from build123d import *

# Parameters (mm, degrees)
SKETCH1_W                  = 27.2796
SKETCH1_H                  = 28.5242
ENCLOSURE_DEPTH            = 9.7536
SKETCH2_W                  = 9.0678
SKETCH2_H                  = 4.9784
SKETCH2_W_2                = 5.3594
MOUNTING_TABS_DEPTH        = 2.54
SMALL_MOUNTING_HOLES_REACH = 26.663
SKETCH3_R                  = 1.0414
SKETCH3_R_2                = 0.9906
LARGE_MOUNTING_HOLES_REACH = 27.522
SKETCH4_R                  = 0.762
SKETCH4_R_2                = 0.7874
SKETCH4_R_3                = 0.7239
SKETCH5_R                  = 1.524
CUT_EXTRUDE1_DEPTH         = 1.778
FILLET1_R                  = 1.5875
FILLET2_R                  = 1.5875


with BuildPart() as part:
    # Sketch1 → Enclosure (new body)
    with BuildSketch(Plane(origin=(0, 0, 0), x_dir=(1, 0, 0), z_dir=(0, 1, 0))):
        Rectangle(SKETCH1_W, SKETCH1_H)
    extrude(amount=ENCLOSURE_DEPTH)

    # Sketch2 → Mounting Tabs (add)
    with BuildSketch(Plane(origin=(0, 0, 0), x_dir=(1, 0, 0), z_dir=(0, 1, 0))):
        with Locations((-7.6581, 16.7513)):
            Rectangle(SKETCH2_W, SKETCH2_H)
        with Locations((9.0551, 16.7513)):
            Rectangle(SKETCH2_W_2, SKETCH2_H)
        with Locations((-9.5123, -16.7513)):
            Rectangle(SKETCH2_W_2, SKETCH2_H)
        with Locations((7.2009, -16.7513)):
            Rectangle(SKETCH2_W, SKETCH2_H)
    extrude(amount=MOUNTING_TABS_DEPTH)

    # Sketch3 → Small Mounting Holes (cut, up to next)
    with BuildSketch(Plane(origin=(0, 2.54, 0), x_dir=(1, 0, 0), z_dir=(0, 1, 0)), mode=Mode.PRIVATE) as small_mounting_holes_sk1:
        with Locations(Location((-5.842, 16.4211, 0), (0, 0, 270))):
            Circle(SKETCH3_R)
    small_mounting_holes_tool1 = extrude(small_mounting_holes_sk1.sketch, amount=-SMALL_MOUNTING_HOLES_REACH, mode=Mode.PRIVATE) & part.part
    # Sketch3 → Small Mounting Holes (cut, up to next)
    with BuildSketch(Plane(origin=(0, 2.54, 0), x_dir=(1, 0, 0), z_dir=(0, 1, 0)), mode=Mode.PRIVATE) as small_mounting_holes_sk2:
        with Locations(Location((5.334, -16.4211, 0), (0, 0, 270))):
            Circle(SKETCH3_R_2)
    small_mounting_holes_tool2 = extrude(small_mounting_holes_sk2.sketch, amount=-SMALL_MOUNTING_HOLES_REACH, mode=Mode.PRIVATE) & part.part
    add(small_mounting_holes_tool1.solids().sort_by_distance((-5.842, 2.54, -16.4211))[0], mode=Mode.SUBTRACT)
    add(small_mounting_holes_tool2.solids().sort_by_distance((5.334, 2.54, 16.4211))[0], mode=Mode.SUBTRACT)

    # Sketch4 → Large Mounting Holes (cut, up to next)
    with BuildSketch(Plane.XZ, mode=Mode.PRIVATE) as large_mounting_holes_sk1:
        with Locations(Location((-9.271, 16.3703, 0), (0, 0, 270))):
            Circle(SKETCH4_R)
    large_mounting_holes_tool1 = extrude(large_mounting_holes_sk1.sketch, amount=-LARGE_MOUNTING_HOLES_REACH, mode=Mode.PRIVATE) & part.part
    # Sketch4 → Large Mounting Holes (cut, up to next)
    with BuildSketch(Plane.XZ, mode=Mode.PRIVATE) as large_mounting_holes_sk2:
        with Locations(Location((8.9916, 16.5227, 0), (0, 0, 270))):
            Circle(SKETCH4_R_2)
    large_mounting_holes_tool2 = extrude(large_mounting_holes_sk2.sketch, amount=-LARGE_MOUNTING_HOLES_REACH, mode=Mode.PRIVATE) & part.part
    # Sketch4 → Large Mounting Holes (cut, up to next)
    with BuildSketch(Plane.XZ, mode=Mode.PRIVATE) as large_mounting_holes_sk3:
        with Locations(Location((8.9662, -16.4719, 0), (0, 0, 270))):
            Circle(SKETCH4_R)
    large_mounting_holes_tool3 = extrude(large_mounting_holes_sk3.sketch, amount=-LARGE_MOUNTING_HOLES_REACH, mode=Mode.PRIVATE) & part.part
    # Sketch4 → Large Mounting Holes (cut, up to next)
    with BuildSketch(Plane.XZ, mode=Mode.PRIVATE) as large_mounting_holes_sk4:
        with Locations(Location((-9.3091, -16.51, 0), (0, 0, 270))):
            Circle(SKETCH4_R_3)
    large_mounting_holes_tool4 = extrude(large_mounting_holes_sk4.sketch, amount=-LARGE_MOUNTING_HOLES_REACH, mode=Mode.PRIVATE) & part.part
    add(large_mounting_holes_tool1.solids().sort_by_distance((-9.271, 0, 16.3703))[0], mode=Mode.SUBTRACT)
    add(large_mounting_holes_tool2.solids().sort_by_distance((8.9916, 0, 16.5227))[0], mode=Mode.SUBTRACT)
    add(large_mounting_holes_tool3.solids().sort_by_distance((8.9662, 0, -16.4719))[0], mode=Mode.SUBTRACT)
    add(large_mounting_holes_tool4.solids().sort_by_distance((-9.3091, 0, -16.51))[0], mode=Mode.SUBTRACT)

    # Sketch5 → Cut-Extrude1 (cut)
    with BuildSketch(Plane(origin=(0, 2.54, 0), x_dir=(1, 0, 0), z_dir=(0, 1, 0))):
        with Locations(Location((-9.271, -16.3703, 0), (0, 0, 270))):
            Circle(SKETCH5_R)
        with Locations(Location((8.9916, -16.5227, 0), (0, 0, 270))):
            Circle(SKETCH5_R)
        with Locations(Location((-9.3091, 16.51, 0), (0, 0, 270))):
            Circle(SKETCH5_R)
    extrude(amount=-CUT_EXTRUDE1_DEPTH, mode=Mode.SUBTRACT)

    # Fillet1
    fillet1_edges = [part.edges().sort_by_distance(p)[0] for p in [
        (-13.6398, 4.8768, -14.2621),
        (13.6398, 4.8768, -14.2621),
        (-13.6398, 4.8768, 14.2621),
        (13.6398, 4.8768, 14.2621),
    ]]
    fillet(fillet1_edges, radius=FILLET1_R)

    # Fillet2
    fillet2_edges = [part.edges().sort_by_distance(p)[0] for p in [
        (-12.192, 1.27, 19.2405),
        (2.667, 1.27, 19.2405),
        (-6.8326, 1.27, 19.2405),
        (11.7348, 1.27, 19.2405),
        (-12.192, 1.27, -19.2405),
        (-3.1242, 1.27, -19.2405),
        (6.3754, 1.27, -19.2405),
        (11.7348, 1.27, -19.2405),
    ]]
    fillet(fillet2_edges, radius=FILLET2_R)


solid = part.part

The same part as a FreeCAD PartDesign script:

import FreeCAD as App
import Part
import Sketcher
from FreeCAD import Vector
Q = App.Units.Quantity


def edges_at(feature, points):
    """Names of the edges that pass closest to the given points."""
    edges = feature.Shape.Edges
    near = lambda p: min(range(len(edges)), key=lambda i: edges[i].distToShape(Part.Vertex(*p))[0])
    return sorted({f"Edge{near(p) + 1}" for p in points})


def add_polygon(sketch, points):
    """Adds a closed chain of lines whose ends are joined by coincident constraints."""
    first, n = sketch.GeometryCount, len(points)
    for a, b in zip(points, points[1:] + points[:1]):
        sketch.addGeometry(Part.LineSegment(App.Vector(*a, 0), App.Vector(*b, 0)), False)
    for i in range(n):
        sketch.addConstraint(Sketcher.Constraint("Coincident", first + i, 2, first + (i + 1) % n, 1))

doc = App.newDocument("Part")
body = doc.addObject("PartDesign::Body", "Body")

# Sketch on XZ plane
sketch1 = body.newObject("Sketcher::SketchObject", "Sketch")
sketch1.AttachmentSupport = (doc.getObject("XZ_Plane"), [""])
sketch1.MapMode = "FlatFace"
add_polygon(sketch1, [(-14, -14), (-14, 14), (14, 14), (14, -14)])  # lines 0-3
sketch1.addConstraint(Sketcher.Constraint("Vertical", 0))
sketch1.addConstraint(Sketcher.Constraint("Horizontal", 1))
sketch1.addConstraint(Sketcher.Constraint("Vertical", 2))
sketch1.addConstraint(Sketcher.Constraint("Horizontal", 3))
sketch1.addConstraint(Sketcher.Constraint("Symmetric", 0, 2, 2, 2, -1, 1))
sketch1.addConstraint(Sketcher.Constraint("DistanceX", 1, 1, 1, 2, Q("1.074 in")))
sketch1.addConstraint(Sketcher.Constraint("DistanceY", 0, 1, 0, 2, Q("1.123 in")))
pad1 = body.newObject("PartDesign::Pad", "Pad")
pad1.Profile = sketch1
pad1.Length = Q("0.384 in")
pad1.Reversed = True

# Sketch on XZ plane
sketch2 = body.newObject("Sketcher::SketchObject", "Sketch001")
sketch2.AttachmentSupport = (doc.getObject("XZ_Plane"), [""])
sketch2.MapMode = "FlatFace"
add_polygon(sketch2, [(-12.2, -19.2), (-12.2, -14.3), (-3.1, -14.3), (-3.1, -19.2)])  # lines 0-3
add_polygon(sketch2, [(6.4, -19.2), (6.4, -14.3), (11.7, -14.3), (11.7, -19.2)])  # lines 4-7
add_polygon(sketch2, [(-12.2, 14.3), (-12.2, 19.2), (-6.8, 19.2), (-6.8, 14.3)])  # lines 8-11
add_polygon(sketch2, [(2.7, 14.3), (2.7, 19.2), (11.7, 19.2), (11.7, 14.3)])  # lines 12-15
sketch2.addConstraint(Sketcher.Constraint("Vertical", 0))
sketch2.addConstraint(Sketcher.Constraint("Horizontal", 1))
sketch2.addConstraint(Sketcher.Constraint("Vertical", 2))
sketch2.addConstraint(Sketcher.Constraint("Horizontal", 3))
sketch2.addConstraint(Sketcher.Constraint("Vertical", 4))
sketch2.addConstraint(Sketcher.Constraint("Horizontal", 5))
sketch2.addConstraint(Sketcher.Constraint("Vertical", 6))
sketch2.addConstraint(Sketcher.Constraint("Horizontal", 7))
sketch2.addConstraint(Sketcher.Constraint("Vertical", 8))
sketch2.addConstraint(Sketcher.Constraint("Horizontal", 9))
sketch2.addConstraint(Sketcher.Constraint("Vertical", 10))
sketch2.addConstraint(Sketcher.Constraint("Horizontal", 11))
sketch2.addConstraint(Sketcher.Constraint("Vertical", 12))
sketch2.addConstraint(Sketcher.Constraint("Horizontal", 13))
sketch2.addConstraint(Sketcher.Constraint("Vertical", 14))
sketch2.addConstraint(Sketcher.Constraint("Horizontal", 15))
sketch2.addConstraint(Sketcher.Constraint("Symmetric", 3, 2, 8, 2, -1))
sketch2.addConstraint(Sketcher.Constraint("Symmetric", 6, 2, 13, 2, -1))
sketch2.addConstraint(Sketcher.Constraint("Horizontal", 1, 2, 4, 2))
sketch2.addConstraint(Sketcher.Constraint("Horizontal", 3, 2, 6, 2))
sketch2.addConstraint(Sketcher.Constraint("Horizontal", 11, 2, 14, 2))
sketch2.addConstraint(Sketcher.Constraint("Equal", 7, 9))
sketch2.addConstraint(Sketcher.Constraint("Equal", 3, 13))
sketch2.addConstraint(Sketcher.Constraint("Equal", 6, 8))
sketch2.addConstraint(Sketcher.Constraint("DistanceX", 1, 1, 1, 2, Q("0.357 in")))
sketch2.addConstraint(Sketcher.Constraint("DistanceX", 5, 1, 5, 2, Q("0.211 in")))
sketch2.addConstraint(Sketcher.Constraint("DistanceY", 0, 1, 0, 2, Q("0.196 in")))
sketch2.addConstraint(Sketcher.Constraint("DistanceX", 0, 2, -1, 1, Q("0.48 in")))
sketch2.addConstraint(Sketcher.Constraint("DistanceX", 9, 2, 4, 2, Q("0.52 in")))
sketch2.addConstraint(Sketcher.Constraint("DistanceY", 0, 2, 8, 2, Q("1.319 in")))
pad2 = body.newObject("PartDesign::Pad", "Pad001")
pad2.Profile = sketch2
pad2.Length = Q("0.1 in")
pad2.Reversed = True

# Sketch on XZ plane
sketch3 = body.newObject("Sketcher::SketchObject", "Sketch002")
sketch3.AttachmentSupport = (doc.getObject("XZ_Plane"), [""])
sketch3.MapMode = "FlatFace"
sketch3.AttachmentOffset = App.Placement(Vector(0, 0, -0.1 * 25.4), App.Rotation())
sketch3.addGeometry(Part.Circle(Vector(-5.8, -16.4, 0), Vector(0, 0, 1), 1), False)
sketch3.addConstraint(Sketcher.Constraint("Diameter", 0, Q("0.082 in")))
sketch3.addConstraint(Sketcher.Constraint("DistanceX", 0, 3, -1, 1, Q("0.23 in")))
sketch3.addConstraint(Sketcher.Constraint("DistanceY", 0, 3, -1, 1, Q("0.6465 in")))
pocket1 = body.newObject("PartDesign::Pocket", "Pocket")
pocket1.Profile = sketch3
pocket1.Type = "UpToFirst"
pocket1.Reversed = True

# Sketch on XZ plane
sketch4 = body.newObject("Sketcher::SketchObject", "Sketch003")
sketch4.AttachmentSupport = (doc.getObject("XZ_Plane"), [""])
sketch4.MapMode = "FlatFace"
sketch4.AttachmentOffset = App.Placement(Vector(0, 0, -0.1 * 25.4), App.Rotation())
sketch4.addGeometry(Part.Circle(Vector(5.3, 16.4, 0), Vector(0, 0, 1), 1), False)
sketch4.addConstraint(Sketcher.Constraint("Diameter", 0, Q("0.078 in")))
sketch4.addConstraint(Sketcher.Constraint("DistanceX", -1, 1, 0, 3, Q("0.21 in")))
sketch4.addConstraint(Sketcher.Constraint("DistanceY", -1, 1, 0, 3, Q("0.6465 in")))
pocket2 = body.newObject("PartDesign::Pocket", "Pocket001")
pocket2.Profile = sketch4
pocket2.Type = "UpToFirst"
pocket2.Reversed = True

# Sketch on XZ plane
sketch5 = body.newObject("Sketcher::SketchObject", "Sketch004")
sketch5.AttachmentSupport = (doc.getObject("XZ_Plane"), [""])
sketch5.MapMode = "FlatFace"
sketch5.addGeometry(Part.Circle(Vector(-9.3, 16.4, 0), Vector(0, 0, 1), 0.8), False)
sketch5.addConstraint(Sketcher.Constraint("Diameter", 0, Q("0.06 in")))
sketch5.addConstraint(Sketcher.Constraint("DistanceX", 0, 3, -1, 1, Q("0.365 in")))
sketch5.addConstraint(Sketcher.Constraint("DistanceY", -1, 1, 0, 3, Q("0.6445 in")))
pocket3 = body.newObject("PartDesign::Pocket", "Pocket002")
pocket3.Profile = sketch5
pocket3.Type = "UpToFirst"

# Sketch on XZ plane
sketch6 = body.newObject("Sketcher::SketchObject", "Sketch005")
sketch6.AttachmentSupport = (doc.getObject("XZ_Plane"), [""])
sketch6.MapMode = "FlatFace"
sketch6.addGeometry(Part.Circle(Vector(9, 16.5, 0), Vector(0, 0, 1), 0.8), False)
sketch6.addConstraint(Sketcher.Constraint("Diameter", 0, Q("0.062 in")))
sketch6.addConstraint(Sketcher.Constraint("DistanceX", -1, 1, 0, 3, Q("0.354 in")))
sketch6.addConstraint(Sketcher.Constraint("DistanceY", -1, 1, 0, 3, Q("0.6505 in")))
pocket4 = body.newObject("PartDesign::Pocket", "Pocket003")
pocket4.Profile = sketch6
pocket4.Type = "UpToFirst"

# Sketch on XZ plane
sketch7 = body.newObject("Sketcher::SketchObject", "Sketch006")
sketch7.AttachmentSupport = (doc.getObject("XZ_Plane"), [""])
sketch7.MapMode = "FlatFace"
sketch7.addGeometry(Part.Circle(Vector(9, -16.5, 0), Vector(0, 0, 1), 0.8), False)
sketch7.addConstraint(Sketcher.Constraint("Diameter", 0, Q("0.06 in")))
sketch7.addConstraint(Sketcher.Constraint("DistanceX", -1, 1, 0, 3, Q("0.353 in")))
sketch7.addConstraint(Sketcher.Constraint("DistanceY", 0, 3, -1, 1, Q("0.6485 in")))
pocket5 = body.newObject("PartDesign::Pocket", "Pocket004")
pocket5.Profile = sketch7
pocket5.Type = "UpToFirst"

# Sketch on XZ plane
sketch8 = body.newObject("Sketcher::SketchObject", "Sketch007")
sketch8.AttachmentSupport = (doc.getObject("XZ_Plane"), [""])
sketch8.MapMode = "FlatFace"
sketch8.addGeometry(Part.Circle(Vector(-9.3, -16.5, 0), Vector(0, 0, 1), 0.7), False)
sketch8.addConstraint(Sketcher.Constraint("Diameter", 0, Q("0.057 in")))
sketch8.addConstraint(Sketcher.Constraint("DistanceY", 0, 3, -1, 1, Q("0.65 in")))
sketch8.addConstraint(Sketcher.Constraint("DistanceX", 0, 3, -1, 1, Q("0.3665 in")))
pocket6 = body.newObject("PartDesign::Pocket", "Pocket005")
pocket6.Profile = sketch8
pocket6.Type = "UpToFirst"

# Sketch on XZ plane
sketch9 = body.newObject("Sketcher::SketchObject", "Sketch008")
sketch9.AttachmentSupport = (doc.getObject("XZ_Plane"), [""])
sketch9.MapMode = "FlatFace"
sketch9.AttachmentOffset = App.Placement(Vector(0, 0, -0.1 * 25.4), App.Rotation())
sketch9.addGeometry(Part.Circle(Vector(-9.3, 16.4, 0), Vector(0, 0, 1), 1.5), False)
sketch9.addGeometry(Part.Circle(Vector(9, 16.5, 0), Vector(0, 0, 1), 1.5), False)
sketch9.addGeometry(Part.Circle(Vector(-9.3, -16.5, 0), Vector(0, 0, 1), 1.5), False)
sketch9.addConstraint(Sketcher.Constraint("Equal", 0, 1))
sketch9.addConstraint(Sketcher.Constraint("Equal", 1, 2))
sketch9.addConstraint(Sketcher.Constraint("Diameter", 0, Q("0.12 in")))
sketch9.addConstraint(Sketcher.Constraint("DistanceY", 2, 3, -1, 1, Q("0.65 in")))
sketch9.addConstraint(Sketcher.Constraint("DistanceX", 0, 3, -1, 1, Q("0.365 in")))
sketch9.addConstraint(Sketcher.Constraint("DistanceX", -1, 1, 1, 3, Q("0.354 in")))
sketch9.addConstraint(Sketcher.Constraint("DistanceY", 0, 3, 1, 3, Q("0.006 in")))
sketch9.addConstraint(Sketcher.Constraint("DistanceY", -1, 1, 0, 3, Q("0.6445 in")))
sketch9.addConstraint(Sketcher.Constraint("DistanceX", 2, 3, -1, 1, Q("0.3665 in")))
pocket7 = body.newObject("PartDesign::Pocket", "Pocket006")
pocket7.Profile = sketch9
pocket7.Length = Q("0.07 in")
pocket7.Reversed = True
doc.recompute()

fillet = body.newObject("PartDesign::Fillet", "Fillet")
fillet.Base = (pocket7, edges_at(pocket7, [
    (-13.64, 4.877, -14.262),
    (13.64, 4.877, -14.262),
    (-13.64, 4.877, 14.262),
    (13.64, 4.877, 14.262),
]))
fillet.Radius = Q("0.0625 in")
doc.recompute()

fillet2 = body.newObject("PartDesign::Fillet", "Fillet001")
fillet2.Base = (fillet, edges_at(fillet, [
    (-12.192, 1.27, 19.241),
    (2.667, 1.27, 19.241),
    (-6.833, 1.27, 19.241),
    (11.735, 1.27, 19.241),
    (-12.192, 1.27, -19.241),
    (-3.124, 1.27, -19.241),
    (6.375, 1.27, -19.241),
    (11.735, 1.27, -19.241),
]))
fillet2.Radius = Q("0.0625 in")

doc.recompute()
